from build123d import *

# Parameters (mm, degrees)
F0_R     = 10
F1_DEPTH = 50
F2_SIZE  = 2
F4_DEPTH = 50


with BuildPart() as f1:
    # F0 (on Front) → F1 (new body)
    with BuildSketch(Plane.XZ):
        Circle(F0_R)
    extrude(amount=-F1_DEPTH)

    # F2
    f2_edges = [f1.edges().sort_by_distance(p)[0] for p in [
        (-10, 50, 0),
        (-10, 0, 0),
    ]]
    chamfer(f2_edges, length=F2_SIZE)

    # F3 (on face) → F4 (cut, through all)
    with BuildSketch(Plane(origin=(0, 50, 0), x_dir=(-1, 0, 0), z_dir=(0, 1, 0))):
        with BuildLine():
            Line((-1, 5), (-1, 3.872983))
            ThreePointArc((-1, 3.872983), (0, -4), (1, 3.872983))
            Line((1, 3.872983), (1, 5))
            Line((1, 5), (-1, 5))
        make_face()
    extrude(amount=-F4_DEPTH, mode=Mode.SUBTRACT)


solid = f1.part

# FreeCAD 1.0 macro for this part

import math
import FreeCAD as App
import Part
import Sketcher
from FreeCAD import Vector
Q = App.Units.Quantity


def edges_at(feature, points):
    """Names of the edges that pass closest to the given points."""
    edges = feature.Shape.Edges
    near = lambda p: min(range(len(edges)), key=lambda i: edges[i].distToShape(Part.Vertex(*p))[0])
    return sorted({f"Edge{near(p) + 1}" for p in points})

doc = App.newDocument("Part")
params = doc.addObject("Spreadsheet::Sheet", "Params")
for row, (alias, value) in enumerate([
    ("sketch1_diameter", "20 mm"),
    ("pad1_length", "50 mm"),
    ("chamfer_size", "2 mm"),
    ("sketch2_radius", "4 mm"),
    ("sketch2_width", "2 mm"),
], start=1):
    params.set(f"A{row}", alias)
    params.set(f"B{row}", "=" + value)
    params.setAlias(f"B{row}", alias)

body = doc.addObject("PartDesign::Body", "Body")

sketch1 = body.newObject("Sketcher::SketchObject", "Sketch")
sketch1.AttachmentSupport = (doc.getObject("XZ_Plane"), [""])
sketch1.MapMode = "FlatFace"
sketch1.addGeometry(Part.Circle(Vector(0, 0, 0), Vector(0, 0, 1), 10), False)
sketch1.addConstraint(Sketcher.Constraint("Coincident", 0, 3, -1, 1))
sketch1.addConstraint(Sketcher.Constraint("Diameter", 0, Q("20 mm")))
sketch1.setExpression("Constraints[1]", "Params.sketch1_diameter")
pad1 = body.newObject("PartDesign::Pad", "Pad")
pad1.Profile = sketch1
pad1.setExpression("Length", "Params.pad1_length")
pad1.Reversed = True
doc.recompute()

chamfer = body.newObject("PartDesign::Chamfer", "Chamfer")
chamfer.Base = (pad1, edges_at(pad1, [(-10, 50, 0), (-10, 0, 0)]))
chamfer.setExpression("Size", "Params.chamfer_size")

sketch2 = body.newObject("Sketcher::SketchObject", "Sketch001")
sketch2.AttachmentSupport = (doc.getObject("XZ_Plane"), [""])
sketch2.MapMode = "FlatFace"
sketch2.AttachmentOffset = App.Placement(Vector(0, 0, -50), App.Rotation())
sketch2.addGeometry(Part.LineSegment(Vector(1, 5, 0), Vector(1, 3.872983, 0)), False)
sketch2.addGeometry(Part.ArcOfCircle(Part.Circle(Vector(0, 0, 0), Vector(0, 0, 1), 4), math.radians(104.477513), math.radians(435.522487)), False)
sketch2.addGeometry(Part.LineSegment(Vector(-1, 3.872983, 0), Vector(-1, 5, 0)), False)
sketch2.addGeometry(Part.LineSegment(Vector(-1, 5, 0), Vector(1, 5, 0)), False)
sketch2.addConstraint(Sketcher.Constraint("Coincident", 0, 2, 1, 2))
sketch2.addConstraint(Sketcher.Constraint("Coincident", 1, 1, 2, 1))
sketch2.addConstraint(Sketcher.Constraint("Coincident", 2, 2, 3, 1))
sketch2.addConstraint(Sketcher.Constraint("Coincident", 3, 2, 0, 1))
sketch2.addConstraint(Sketcher.Constraint("Vertical", 0))
sketch2.addConstraint(Sketcher.Constraint("Vertical", 2))
sketch2.addConstraint(Sketcher.Constraint("Horizontal", 3))
sketch2.addConstraint(Sketcher.Constraint("Coincident", 1, 3, -1, 1))
sketch2.addConstraint(Sketcher.Constraint("Horizontal", 0, 2, 1, 1))
sketch2.addConstraint(Sketcher.Constraint("Radius", 1, Q("4 mm")))
sketch2.addConstraint(Sketcher.Constraint("DistanceX", 3, 1, 3, 2, Q("2 mm")))
sketch2.addConstraint(Sketcher.Constraint("DistanceY", -1, 1, 2, 2, Q("5 mm")))
sketch2.setExpression("Constraints[9]", "Params.sketch2_radius")
sketch2.setExpression("Constraints[10]", "Params.sketch2_width")
pocket1 = body.newObject("PartDesign::Pocket", "Pocket")
pocket1.Profile = sketch2
pocket1.Type = "ThroughAll"
pocket1.Reversed = True

doc.recompute()
